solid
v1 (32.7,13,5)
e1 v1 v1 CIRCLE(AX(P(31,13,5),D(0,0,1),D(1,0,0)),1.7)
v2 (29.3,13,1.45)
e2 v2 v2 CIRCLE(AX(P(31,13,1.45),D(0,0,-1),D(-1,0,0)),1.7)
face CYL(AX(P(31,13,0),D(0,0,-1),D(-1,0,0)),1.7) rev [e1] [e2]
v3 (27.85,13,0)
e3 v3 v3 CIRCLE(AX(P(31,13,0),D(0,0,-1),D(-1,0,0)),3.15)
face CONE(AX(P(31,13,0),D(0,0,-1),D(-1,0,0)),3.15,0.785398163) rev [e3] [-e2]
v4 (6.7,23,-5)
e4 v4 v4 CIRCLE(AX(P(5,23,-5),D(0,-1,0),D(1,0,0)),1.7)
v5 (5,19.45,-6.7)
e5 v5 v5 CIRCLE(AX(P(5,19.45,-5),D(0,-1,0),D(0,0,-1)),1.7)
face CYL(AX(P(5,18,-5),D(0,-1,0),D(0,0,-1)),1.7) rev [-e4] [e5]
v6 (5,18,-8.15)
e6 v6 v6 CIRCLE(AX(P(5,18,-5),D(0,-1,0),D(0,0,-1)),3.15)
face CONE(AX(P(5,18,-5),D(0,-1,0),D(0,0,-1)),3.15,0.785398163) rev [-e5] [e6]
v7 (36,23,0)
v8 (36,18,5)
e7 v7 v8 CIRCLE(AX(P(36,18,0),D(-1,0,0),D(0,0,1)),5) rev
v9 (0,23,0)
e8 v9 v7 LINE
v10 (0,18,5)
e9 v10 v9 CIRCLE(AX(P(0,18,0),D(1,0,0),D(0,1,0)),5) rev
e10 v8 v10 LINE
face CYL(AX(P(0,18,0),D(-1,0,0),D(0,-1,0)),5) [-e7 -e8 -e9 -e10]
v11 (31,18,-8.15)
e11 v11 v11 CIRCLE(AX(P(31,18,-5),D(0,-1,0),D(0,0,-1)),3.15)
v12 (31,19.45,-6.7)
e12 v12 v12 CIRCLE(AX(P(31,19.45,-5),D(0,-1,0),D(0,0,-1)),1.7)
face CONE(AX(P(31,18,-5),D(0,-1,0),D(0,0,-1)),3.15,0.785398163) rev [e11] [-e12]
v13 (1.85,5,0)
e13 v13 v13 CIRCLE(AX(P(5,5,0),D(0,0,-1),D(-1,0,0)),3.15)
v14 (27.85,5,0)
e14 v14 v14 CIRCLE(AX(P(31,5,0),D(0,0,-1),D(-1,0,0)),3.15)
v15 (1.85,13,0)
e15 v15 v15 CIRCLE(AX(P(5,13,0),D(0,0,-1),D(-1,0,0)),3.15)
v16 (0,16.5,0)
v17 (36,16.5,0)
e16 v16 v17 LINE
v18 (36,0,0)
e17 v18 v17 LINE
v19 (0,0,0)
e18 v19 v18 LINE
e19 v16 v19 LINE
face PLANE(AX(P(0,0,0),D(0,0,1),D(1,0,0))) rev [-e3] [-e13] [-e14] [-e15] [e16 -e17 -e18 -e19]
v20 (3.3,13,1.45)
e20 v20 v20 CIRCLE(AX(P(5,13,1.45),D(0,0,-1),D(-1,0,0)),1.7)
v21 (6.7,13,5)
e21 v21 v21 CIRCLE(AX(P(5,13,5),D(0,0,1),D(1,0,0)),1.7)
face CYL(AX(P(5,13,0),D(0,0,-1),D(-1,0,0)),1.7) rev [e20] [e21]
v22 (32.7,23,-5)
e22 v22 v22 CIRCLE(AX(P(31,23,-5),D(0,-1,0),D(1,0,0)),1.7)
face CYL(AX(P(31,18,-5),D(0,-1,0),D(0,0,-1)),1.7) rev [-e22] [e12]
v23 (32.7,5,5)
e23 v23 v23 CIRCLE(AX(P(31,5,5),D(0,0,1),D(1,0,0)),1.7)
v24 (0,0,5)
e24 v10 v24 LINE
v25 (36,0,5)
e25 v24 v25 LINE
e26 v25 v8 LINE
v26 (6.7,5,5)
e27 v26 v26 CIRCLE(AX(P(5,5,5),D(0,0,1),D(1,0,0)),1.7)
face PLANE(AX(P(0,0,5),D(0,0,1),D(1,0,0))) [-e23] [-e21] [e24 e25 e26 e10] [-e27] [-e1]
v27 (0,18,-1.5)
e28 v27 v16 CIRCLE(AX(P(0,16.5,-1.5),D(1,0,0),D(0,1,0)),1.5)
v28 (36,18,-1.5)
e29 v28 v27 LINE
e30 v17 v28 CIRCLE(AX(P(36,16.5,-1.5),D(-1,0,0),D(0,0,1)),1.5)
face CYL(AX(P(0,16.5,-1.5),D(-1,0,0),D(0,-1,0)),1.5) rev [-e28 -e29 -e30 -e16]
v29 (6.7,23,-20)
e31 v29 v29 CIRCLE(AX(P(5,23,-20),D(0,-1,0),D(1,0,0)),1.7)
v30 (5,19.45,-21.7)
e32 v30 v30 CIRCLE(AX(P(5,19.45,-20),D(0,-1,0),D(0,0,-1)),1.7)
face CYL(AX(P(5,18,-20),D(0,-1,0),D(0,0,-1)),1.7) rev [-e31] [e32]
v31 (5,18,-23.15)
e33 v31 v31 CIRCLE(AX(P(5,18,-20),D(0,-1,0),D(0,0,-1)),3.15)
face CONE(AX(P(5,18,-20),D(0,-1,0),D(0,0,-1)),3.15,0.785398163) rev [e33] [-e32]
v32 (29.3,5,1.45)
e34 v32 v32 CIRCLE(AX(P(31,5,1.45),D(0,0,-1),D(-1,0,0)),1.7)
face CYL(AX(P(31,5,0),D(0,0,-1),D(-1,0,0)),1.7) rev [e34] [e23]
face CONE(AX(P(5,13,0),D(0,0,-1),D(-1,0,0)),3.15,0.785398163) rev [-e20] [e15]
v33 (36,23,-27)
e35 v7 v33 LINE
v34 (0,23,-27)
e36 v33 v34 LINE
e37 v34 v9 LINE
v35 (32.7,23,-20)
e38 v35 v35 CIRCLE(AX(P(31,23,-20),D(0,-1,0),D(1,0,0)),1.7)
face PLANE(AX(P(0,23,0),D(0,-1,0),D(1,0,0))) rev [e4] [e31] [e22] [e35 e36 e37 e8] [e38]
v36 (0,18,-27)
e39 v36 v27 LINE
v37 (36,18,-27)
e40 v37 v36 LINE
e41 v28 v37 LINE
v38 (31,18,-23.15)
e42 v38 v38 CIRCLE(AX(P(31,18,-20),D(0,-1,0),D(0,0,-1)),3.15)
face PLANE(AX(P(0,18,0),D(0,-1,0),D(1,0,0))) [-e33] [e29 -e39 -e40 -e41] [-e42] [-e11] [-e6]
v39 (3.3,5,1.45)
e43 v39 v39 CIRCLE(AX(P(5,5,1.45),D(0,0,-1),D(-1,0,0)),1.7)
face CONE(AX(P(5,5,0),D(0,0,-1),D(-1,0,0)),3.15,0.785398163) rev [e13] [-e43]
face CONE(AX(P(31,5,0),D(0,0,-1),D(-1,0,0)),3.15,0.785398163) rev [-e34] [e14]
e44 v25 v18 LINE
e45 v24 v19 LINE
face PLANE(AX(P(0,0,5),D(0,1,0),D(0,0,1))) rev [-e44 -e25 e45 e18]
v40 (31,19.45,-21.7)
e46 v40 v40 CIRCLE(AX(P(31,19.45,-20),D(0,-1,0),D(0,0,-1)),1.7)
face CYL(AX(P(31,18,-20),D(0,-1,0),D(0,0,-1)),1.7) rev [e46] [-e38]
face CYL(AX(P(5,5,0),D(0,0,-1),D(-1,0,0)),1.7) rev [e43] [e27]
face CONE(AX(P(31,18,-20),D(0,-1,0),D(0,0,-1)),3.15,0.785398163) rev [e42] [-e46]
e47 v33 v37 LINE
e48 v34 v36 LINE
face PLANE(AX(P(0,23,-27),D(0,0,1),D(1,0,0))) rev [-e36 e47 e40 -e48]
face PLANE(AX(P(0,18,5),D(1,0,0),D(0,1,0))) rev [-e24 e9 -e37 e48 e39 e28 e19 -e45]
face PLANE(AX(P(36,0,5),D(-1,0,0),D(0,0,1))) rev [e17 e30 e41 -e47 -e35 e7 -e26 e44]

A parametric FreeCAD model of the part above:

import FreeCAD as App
import Part
import Sketcher
Q = App.Units.Quantity


def edges_at(feature, points):
    """Names of the edges that pass closest to the given points."""
    edges = feature.Shape.Edges
    near = lambda p: min(range(len(edges)), key=lambda i: edges[i].distToShape(Part.Vertex(*p))[0])
    return sorted({f"Edge{near(p) + 1}" for p in points})


def add_polygon(sketch, points):
    """Adds a closed chain of lines whose ends are joined by coincident constraints."""
    first, n = sketch.GeometryCount, len(points)
    for a, b in zip(points, points[1:] + points[:1]):
        sketch.addGeometry(Part.LineSegment(App.Vector(*a, 0), App.Vector(*b, 0)), False)
    for i in range(n):
        sketch.addConstraint(Sketcher.Constraint("Coincident", first + i, 2, first + (i + 1) % n, 1))

doc = App.newDocument("Part")
body = doc.addObject("PartDesign::Body", "Body")

sketch1 = doc.addObject("Sketcher::SketchObject", "Sketch")
body.addObject(sketch1)
sketch1.AttachmentSupport = (doc.XY_Plane, [""])
sketch1.MapMode = "FlatFace"
add_polygon(sketch1, [(0, 18), (0, 0), (36, 0), (36, 18)])
sketch1.addConstraint([
    Sketcher.Constraint("Vertical", 0),
    Sketcher.Constraint("Horizontal", 1),
    Sketcher.Constraint("Vertical", 2),
    Sketcher.Constraint("Horizontal", 3),
    Sketcher.Constraint("Coincident", 0, 2, -1, 1),
    Sketcher.Constraint("DistanceX", 1, 1, 1, 2, Q("36 mm")),
    Sketcher.Constraint("DistanceY", 0, 2, 0, 1, Q("18 mm")),
])
pad1 = doc.addObject("PartDesign::Pad", "Pad")
body.addObject(pad1)
pad1.Profile = sketch1
pad1.Length = 5

sketch2 = doc.addObject("Sketcher::SketchObject", "Sketch001")
body.addObject(sketch2)
sketch2.AttachmentSupport = (doc.XY_Plane, [""])
sketch2.MapMode = "FlatFace"
sketch2.addGeometry([
    Part.Circle(App.Vector(31, 13, 0), App.Vector(0, 0, 1), 1.7),
    Part.Circle(App.Vector(31, 5, 0), App.Vector(0, 0, 1), 1.7),
    Part.Circle(App.Vector(5, 5, 0), App.Vector(0, 0, 1), 1.7),
    Part.Circle(App.Vector(5, 13, 0), App.Vector(0, 0, 1), 1.7),
], False)
sketch2.addConstraint([
    Sketcher.Constraint("Equal", 0, 1),
    Sketcher.Constraint("Equal", 1, 2),
    Sketcher.Constraint("Equal", 2, 3),
    Sketcher.Constraint("Horizontal", 1, 3, 2, 3),
    Sketcher.Constraint("Horizontal", 0, 3, 3, 3),
    Sketcher.Constraint("Vertical", 0, 3, 1, 3),
    Sketcher.Constraint("Vertical", 2, 3, 3, 3),
    Sketcher.Constraint("Diameter", 0, Q("3.4 mm")),
    Sketcher.Constraint("DistanceX", -1, 1, 0, 3, Q("31 mm")),
    Sketcher.Constraint("DistanceY", -1, 1, 0, 3, Q("13 mm")),
    Sketcher.Constraint("DistanceY", -1, 1, 1, 3, Q("5 mm")),
    Sketcher.Constraint("DistanceX", -1, 1, 2, 3, Q("5 mm")),
])
doc.recompute()
hole = doc.addObject("PartDesign::Hole", "Hole")
body.addObject(hole)
hole.Profile = sketch2
hole.ThreadType = "None"
hole.Diameter = 3.4
hole.DepthType = "Dimension"
hole.Depth = 5
hole.DrillPoint = "Flat"
hole.HoleCutType = "Countersink"
hole.HoleCutDiameter = 6.3
hole.HoleCutCountersinkAngle = 90
hole.Reversed = True

sketch3 = doc.addObject("Sketcher::SketchObject", "Sketch002")
body.addObject(sketch3)
sketch3.AttachmentSupport = (doc.XZ_Plane, [""])
sketch3.MapMode = "FlatFace"
sketch3.AttachmentOffset = App.Placement(App.Vector(0, 0, -18), App.Rotation())
add_polygon(sketch3, [(0, -27), (0, 5), (36, 5), (36, -27)])
sketch3.addConstraint([
    Sketcher.Constraint("Vertical", 0),
    Sketcher.Constraint("Horizontal", 1),
    Sketcher.Constraint("Vertical", 2),
    Sketcher.Constraint("Horizontal", 3),
    Sketcher.Constraint("PointOnObject", 0, 2, -2),
    Sketcher.Constraint("DistanceX", 1, 1, 1, 2, Q("36 mm")),
    Sketcher.Constraint("DistanceY", 0, 1, 0, 2, Q("32 mm")),
    Sketcher.Constraint("DistanceY", -1, 1, 0, 2, Q("5 mm")),
])
pad2 = doc.addObject("PartDesign::Pad", "Pad001")
body.addObject(pad2)
pad2.Profile = sketch3
pad2.Length = 5
pad2.Reversed = True

sketch4 = doc.addObject("Sketcher::SketchObject", "Sketch003")
body.addObject(sketch4)
sketch4.AttachmentSupport = (doc.XZ_Plane, [""])
sketch4.MapMode = "FlatFace"
sketch4.AttachmentOffset = App.Placement(App.Vector(0, 0, -18), App.Rotation())
sketch4.addGeometry([
    Part.Circle(App.Vector(31, -5, 0), App.Vector(0, 0, 1), 1.7),
    Part.Circle(App.Vector(31, -20, 0), App.Vector(0, 0, 1), 1.7),
    Part.Circle(App.Vector(5, -20, 0), App.Vector(0, 0, 1), 1.7),
    Part.Circle(App.Vector(5, -5, 0), App.Vector(0, 0, 1), 1.7),
], False)
sketch4.addConstraint([
    Sketcher.Constraint("Equal", 0, 1),
    Sketcher.Constraint("Equal", 1, 2),
    Sketcher.Constraint("Equal", 2, 3),
    Sketcher.Constraint("Horizontal", 1, 3, 2, 3),
    Sketcher.Constraint("Horizontal", 0, 3, 3, 3),
    Sketcher.Constraint("Vertical", 0, 3, 1, 3),
    Sketcher.Constraint("Vertical", 2, 3, 3, 3),
    Sketcher.Constraint("Diameter", 0, Q("3.4 mm")),
    Sketcher.Constraint("DistanceX", -1, 1, 0, 3, Q("31 mm")),
    Sketcher.Constraint("DistanceY", 0, 3, -1, 1, Q("5 mm")),
    Sketcher.Constraint("DistanceY", 1, 3, -1, 1, Q("20 mm")),
    Sketcher.Constraint("DistanceX", -1, 1, 2, 3, Q("5 mm")),
])
doc.recompute()
hole2 = doc.addObject("PartDesign::Hole", "Hole001")
body.addObject(hole2)
hole2.Profile = sketch4
hole2.ThreadType = "None"
hole2.Diameter = 3.4
hole2.DepthType = "Dimension"
hole2.Depth = 5
hole2.DrillPoint = "Flat"
hole2.HoleCutType = "Countersink"
hole2.HoleCutDiameter = 6.3
hole2.HoleCutCountersinkAngle = 90
doc.recompute()

fillet = doc.addObject("PartDesign::Fillet", "Fillet")
body.addObject(fillet)
fillet.Base = (hole2, edges_at(hole2, [(18, 18, 0)]))
fillet.Radius = 1.5
doc.recompute()

fillet2 = doc.addObject("PartDesign::Fillet", "Fillet001")
body.addObject(fillet2)
fillet2.Base = (fillet, edges_at(fillet, [(18, 23, 5)]))
fillet2.Radius = 5

doc.recompute()
